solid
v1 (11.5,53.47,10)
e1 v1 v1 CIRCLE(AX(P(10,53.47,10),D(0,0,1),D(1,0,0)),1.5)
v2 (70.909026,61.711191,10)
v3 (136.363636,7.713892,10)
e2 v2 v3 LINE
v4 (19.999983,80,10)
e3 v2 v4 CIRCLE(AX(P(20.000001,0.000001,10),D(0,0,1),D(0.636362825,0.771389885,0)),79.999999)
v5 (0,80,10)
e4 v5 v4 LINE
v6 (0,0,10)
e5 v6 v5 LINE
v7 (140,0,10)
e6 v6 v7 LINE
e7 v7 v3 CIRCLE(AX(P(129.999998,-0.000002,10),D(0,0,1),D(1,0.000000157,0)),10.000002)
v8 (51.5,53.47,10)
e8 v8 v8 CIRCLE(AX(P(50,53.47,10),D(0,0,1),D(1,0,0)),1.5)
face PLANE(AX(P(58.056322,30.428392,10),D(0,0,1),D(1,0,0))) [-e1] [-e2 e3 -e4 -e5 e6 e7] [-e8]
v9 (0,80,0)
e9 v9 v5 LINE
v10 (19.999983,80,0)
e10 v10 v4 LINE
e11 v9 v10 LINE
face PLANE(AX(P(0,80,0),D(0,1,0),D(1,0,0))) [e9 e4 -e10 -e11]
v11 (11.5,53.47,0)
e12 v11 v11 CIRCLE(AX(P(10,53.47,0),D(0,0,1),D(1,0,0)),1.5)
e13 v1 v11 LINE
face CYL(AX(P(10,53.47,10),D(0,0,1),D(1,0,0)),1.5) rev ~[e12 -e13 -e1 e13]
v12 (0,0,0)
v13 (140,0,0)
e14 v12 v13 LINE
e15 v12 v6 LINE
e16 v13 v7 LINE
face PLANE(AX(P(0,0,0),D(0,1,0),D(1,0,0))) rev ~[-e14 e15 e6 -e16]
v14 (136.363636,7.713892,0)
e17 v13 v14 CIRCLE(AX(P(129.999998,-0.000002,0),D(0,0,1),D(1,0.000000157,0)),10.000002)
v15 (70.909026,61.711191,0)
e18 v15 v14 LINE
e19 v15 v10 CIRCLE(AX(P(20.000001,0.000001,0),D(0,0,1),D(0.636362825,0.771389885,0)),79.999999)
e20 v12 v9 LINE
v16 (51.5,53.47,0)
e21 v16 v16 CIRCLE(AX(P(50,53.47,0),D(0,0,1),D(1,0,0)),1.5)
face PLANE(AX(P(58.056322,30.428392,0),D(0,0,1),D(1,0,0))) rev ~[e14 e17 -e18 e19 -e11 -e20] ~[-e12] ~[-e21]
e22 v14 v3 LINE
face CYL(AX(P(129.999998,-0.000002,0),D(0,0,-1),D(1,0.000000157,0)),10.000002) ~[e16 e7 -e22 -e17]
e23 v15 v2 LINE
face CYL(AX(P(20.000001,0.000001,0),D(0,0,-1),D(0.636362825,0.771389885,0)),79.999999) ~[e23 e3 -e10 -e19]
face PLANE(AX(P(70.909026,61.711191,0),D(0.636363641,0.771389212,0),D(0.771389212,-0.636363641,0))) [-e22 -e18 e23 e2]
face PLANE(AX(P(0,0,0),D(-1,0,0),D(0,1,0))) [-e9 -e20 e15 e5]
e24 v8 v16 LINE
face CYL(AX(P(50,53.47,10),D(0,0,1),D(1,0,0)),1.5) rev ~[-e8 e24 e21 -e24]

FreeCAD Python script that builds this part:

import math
import FreeCAD as App
import Part
import Sketcher
Q = App.Units.Quantity

doc = App.newDocument("Part")
body = doc.addObject("PartDesign::Body", "Body")

# Sketch on XY plane
sketch1 = body.newObject("Sketcher::SketchObject", "Sketch")
sketch1.AttachmentSupport = (doc.getObject("XY_Plane"), [""])
sketch1.MapMode = "FlatFace"
sketch1.addGeometry([
    Part.LineSegment(App.Vector(0, 0, 0), App.Vector(140, 0, 0)),  # 0
    Part.ArcOfCircle(Part.Circle(App.Vector(129.999998, -0.000002, 0), App.Vector(0, 0, 1), 10.000002), math.radians(0.000009), math.radians(50.4788)),  # 1
    Part.LineSegment(App.Vector(136.363636, 7.713892, 0), App.Vector(70.909026, 61.711191, 0)),  # 2
    Part.ArcOfCircle(Part.Circle(App.Vector(20.000001, 0.000001, 0), App.Vector(0, 0, 1), 79.999999), math.radians(50.478864), math.radians(90.000013)),  # 3
    Part.LineSegment(App.Vector(19.999983, 80, 0), App.Vector(0, 80, 0)),  # 4
    Part.LineSegment(App.Vector(0, 80, 0), App.Vector(0, 0, 0)),  # 5
], False)
sketch1.addConstraint([
    Sketcher.Constraint("Coincident", 0, 2, 1, 1),
    Sketcher.Constraint("Coincident", 1, 2, 2, 1),
    Sketcher.Constraint("Coincident", 2, 2, 3, 1),
    Sketcher.Constraint("Coincident", 3, 2, 4, 1),
    Sketcher.Constraint("Coincident", 4, 2, 5, 1),
    Sketcher.Constraint("Coincident", 5, 2, 0, 1),
    Sketcher.Constraint("Horizontal", 0),
    Sketcher.Constraint("Horizontal", 4),
    Sketcher.Constraint("Vertical", 5),
    Sketcher.Constraint("Coincident", 5, 2, -1, 1),
    Sketcher.Constraint("PointOnObject", 1, 3, -1),
    Sketcher.Constraint("PointOnObject", 3, 3, -1),
    Sketcher.Constraint("Radius", 3, Q("79.999999 mm")),
    Sketcher.Constraint("DistanceX", 0, 1, 0, 2, Q("140 mm")),
    Sketcher.Constraint("DistanceX", -1, 1, 3, 3, Q("20.000001 mm")),
    Sketcher.Constraint("Radius", 1, Q("10.000002 mm")),
    Sketcher.Constraint("DistanceY", 1, 2, 2, 2, Q("53.997299 mm")),
    Sketcher.Constraint("DistanceX", 4, 2, 4, 1, Q("19.999983 mm")),
    Sketcher.Constraint("DistanceY", -1, 1, 2, 2, Q("61.711191 mm")),
])
pad1 = body.newObject("PartDesign::Pad", "Pad")
pad1.Profile = sketch1
pad1.Length = 10

# Sketch on XY plane
sketch2 = body.newObject("Sketcher::SketchObject", "Sketch001")
sketch2.AttachmentSupport = (doc.getObject("XY_Plane"), [""])
sketch2.MapMode = "FlatFace"
sketch2.AttachmentOffset = App.Placement(App.Vector(0, 0, 10), App.Rotation())
sketch2.addGeometry([
    Part.Circle(App.Vector(10, 53.5, 0), App.Vector(0, 0, 1), 1.5),
    Part.Circle(App.Vector(50, 53.5, 0), App.Vector(0, 0, 1), 1.5),
], False)
sketch2.addConstraint([
    Sketcher.Constraint("Equal", 0, 1),
    Sketcher.Constraint("Horizontal", 0, 3, 1, 3),
    Sketcher.Constraint("Diameter", 0, Q("3 mm")),
    Sketcher.Constraint("DistanceX", -1, 1, 0, 3, Q("10 mm")),
    Sketcher.Constraint("DistanceX", -1, 1, 1, 3, Q("50 mm")),
    Sketcher.Constraint("DistanceY", -1, 1, 0, 3, Q("53.47 mm")),
])
pocket1 = body.newObject("PartDesign::Pocket", "Pocket")
pocket1.Profile = sketch2
pocket1.Type = "ThroughAll"

doc.recompute()
